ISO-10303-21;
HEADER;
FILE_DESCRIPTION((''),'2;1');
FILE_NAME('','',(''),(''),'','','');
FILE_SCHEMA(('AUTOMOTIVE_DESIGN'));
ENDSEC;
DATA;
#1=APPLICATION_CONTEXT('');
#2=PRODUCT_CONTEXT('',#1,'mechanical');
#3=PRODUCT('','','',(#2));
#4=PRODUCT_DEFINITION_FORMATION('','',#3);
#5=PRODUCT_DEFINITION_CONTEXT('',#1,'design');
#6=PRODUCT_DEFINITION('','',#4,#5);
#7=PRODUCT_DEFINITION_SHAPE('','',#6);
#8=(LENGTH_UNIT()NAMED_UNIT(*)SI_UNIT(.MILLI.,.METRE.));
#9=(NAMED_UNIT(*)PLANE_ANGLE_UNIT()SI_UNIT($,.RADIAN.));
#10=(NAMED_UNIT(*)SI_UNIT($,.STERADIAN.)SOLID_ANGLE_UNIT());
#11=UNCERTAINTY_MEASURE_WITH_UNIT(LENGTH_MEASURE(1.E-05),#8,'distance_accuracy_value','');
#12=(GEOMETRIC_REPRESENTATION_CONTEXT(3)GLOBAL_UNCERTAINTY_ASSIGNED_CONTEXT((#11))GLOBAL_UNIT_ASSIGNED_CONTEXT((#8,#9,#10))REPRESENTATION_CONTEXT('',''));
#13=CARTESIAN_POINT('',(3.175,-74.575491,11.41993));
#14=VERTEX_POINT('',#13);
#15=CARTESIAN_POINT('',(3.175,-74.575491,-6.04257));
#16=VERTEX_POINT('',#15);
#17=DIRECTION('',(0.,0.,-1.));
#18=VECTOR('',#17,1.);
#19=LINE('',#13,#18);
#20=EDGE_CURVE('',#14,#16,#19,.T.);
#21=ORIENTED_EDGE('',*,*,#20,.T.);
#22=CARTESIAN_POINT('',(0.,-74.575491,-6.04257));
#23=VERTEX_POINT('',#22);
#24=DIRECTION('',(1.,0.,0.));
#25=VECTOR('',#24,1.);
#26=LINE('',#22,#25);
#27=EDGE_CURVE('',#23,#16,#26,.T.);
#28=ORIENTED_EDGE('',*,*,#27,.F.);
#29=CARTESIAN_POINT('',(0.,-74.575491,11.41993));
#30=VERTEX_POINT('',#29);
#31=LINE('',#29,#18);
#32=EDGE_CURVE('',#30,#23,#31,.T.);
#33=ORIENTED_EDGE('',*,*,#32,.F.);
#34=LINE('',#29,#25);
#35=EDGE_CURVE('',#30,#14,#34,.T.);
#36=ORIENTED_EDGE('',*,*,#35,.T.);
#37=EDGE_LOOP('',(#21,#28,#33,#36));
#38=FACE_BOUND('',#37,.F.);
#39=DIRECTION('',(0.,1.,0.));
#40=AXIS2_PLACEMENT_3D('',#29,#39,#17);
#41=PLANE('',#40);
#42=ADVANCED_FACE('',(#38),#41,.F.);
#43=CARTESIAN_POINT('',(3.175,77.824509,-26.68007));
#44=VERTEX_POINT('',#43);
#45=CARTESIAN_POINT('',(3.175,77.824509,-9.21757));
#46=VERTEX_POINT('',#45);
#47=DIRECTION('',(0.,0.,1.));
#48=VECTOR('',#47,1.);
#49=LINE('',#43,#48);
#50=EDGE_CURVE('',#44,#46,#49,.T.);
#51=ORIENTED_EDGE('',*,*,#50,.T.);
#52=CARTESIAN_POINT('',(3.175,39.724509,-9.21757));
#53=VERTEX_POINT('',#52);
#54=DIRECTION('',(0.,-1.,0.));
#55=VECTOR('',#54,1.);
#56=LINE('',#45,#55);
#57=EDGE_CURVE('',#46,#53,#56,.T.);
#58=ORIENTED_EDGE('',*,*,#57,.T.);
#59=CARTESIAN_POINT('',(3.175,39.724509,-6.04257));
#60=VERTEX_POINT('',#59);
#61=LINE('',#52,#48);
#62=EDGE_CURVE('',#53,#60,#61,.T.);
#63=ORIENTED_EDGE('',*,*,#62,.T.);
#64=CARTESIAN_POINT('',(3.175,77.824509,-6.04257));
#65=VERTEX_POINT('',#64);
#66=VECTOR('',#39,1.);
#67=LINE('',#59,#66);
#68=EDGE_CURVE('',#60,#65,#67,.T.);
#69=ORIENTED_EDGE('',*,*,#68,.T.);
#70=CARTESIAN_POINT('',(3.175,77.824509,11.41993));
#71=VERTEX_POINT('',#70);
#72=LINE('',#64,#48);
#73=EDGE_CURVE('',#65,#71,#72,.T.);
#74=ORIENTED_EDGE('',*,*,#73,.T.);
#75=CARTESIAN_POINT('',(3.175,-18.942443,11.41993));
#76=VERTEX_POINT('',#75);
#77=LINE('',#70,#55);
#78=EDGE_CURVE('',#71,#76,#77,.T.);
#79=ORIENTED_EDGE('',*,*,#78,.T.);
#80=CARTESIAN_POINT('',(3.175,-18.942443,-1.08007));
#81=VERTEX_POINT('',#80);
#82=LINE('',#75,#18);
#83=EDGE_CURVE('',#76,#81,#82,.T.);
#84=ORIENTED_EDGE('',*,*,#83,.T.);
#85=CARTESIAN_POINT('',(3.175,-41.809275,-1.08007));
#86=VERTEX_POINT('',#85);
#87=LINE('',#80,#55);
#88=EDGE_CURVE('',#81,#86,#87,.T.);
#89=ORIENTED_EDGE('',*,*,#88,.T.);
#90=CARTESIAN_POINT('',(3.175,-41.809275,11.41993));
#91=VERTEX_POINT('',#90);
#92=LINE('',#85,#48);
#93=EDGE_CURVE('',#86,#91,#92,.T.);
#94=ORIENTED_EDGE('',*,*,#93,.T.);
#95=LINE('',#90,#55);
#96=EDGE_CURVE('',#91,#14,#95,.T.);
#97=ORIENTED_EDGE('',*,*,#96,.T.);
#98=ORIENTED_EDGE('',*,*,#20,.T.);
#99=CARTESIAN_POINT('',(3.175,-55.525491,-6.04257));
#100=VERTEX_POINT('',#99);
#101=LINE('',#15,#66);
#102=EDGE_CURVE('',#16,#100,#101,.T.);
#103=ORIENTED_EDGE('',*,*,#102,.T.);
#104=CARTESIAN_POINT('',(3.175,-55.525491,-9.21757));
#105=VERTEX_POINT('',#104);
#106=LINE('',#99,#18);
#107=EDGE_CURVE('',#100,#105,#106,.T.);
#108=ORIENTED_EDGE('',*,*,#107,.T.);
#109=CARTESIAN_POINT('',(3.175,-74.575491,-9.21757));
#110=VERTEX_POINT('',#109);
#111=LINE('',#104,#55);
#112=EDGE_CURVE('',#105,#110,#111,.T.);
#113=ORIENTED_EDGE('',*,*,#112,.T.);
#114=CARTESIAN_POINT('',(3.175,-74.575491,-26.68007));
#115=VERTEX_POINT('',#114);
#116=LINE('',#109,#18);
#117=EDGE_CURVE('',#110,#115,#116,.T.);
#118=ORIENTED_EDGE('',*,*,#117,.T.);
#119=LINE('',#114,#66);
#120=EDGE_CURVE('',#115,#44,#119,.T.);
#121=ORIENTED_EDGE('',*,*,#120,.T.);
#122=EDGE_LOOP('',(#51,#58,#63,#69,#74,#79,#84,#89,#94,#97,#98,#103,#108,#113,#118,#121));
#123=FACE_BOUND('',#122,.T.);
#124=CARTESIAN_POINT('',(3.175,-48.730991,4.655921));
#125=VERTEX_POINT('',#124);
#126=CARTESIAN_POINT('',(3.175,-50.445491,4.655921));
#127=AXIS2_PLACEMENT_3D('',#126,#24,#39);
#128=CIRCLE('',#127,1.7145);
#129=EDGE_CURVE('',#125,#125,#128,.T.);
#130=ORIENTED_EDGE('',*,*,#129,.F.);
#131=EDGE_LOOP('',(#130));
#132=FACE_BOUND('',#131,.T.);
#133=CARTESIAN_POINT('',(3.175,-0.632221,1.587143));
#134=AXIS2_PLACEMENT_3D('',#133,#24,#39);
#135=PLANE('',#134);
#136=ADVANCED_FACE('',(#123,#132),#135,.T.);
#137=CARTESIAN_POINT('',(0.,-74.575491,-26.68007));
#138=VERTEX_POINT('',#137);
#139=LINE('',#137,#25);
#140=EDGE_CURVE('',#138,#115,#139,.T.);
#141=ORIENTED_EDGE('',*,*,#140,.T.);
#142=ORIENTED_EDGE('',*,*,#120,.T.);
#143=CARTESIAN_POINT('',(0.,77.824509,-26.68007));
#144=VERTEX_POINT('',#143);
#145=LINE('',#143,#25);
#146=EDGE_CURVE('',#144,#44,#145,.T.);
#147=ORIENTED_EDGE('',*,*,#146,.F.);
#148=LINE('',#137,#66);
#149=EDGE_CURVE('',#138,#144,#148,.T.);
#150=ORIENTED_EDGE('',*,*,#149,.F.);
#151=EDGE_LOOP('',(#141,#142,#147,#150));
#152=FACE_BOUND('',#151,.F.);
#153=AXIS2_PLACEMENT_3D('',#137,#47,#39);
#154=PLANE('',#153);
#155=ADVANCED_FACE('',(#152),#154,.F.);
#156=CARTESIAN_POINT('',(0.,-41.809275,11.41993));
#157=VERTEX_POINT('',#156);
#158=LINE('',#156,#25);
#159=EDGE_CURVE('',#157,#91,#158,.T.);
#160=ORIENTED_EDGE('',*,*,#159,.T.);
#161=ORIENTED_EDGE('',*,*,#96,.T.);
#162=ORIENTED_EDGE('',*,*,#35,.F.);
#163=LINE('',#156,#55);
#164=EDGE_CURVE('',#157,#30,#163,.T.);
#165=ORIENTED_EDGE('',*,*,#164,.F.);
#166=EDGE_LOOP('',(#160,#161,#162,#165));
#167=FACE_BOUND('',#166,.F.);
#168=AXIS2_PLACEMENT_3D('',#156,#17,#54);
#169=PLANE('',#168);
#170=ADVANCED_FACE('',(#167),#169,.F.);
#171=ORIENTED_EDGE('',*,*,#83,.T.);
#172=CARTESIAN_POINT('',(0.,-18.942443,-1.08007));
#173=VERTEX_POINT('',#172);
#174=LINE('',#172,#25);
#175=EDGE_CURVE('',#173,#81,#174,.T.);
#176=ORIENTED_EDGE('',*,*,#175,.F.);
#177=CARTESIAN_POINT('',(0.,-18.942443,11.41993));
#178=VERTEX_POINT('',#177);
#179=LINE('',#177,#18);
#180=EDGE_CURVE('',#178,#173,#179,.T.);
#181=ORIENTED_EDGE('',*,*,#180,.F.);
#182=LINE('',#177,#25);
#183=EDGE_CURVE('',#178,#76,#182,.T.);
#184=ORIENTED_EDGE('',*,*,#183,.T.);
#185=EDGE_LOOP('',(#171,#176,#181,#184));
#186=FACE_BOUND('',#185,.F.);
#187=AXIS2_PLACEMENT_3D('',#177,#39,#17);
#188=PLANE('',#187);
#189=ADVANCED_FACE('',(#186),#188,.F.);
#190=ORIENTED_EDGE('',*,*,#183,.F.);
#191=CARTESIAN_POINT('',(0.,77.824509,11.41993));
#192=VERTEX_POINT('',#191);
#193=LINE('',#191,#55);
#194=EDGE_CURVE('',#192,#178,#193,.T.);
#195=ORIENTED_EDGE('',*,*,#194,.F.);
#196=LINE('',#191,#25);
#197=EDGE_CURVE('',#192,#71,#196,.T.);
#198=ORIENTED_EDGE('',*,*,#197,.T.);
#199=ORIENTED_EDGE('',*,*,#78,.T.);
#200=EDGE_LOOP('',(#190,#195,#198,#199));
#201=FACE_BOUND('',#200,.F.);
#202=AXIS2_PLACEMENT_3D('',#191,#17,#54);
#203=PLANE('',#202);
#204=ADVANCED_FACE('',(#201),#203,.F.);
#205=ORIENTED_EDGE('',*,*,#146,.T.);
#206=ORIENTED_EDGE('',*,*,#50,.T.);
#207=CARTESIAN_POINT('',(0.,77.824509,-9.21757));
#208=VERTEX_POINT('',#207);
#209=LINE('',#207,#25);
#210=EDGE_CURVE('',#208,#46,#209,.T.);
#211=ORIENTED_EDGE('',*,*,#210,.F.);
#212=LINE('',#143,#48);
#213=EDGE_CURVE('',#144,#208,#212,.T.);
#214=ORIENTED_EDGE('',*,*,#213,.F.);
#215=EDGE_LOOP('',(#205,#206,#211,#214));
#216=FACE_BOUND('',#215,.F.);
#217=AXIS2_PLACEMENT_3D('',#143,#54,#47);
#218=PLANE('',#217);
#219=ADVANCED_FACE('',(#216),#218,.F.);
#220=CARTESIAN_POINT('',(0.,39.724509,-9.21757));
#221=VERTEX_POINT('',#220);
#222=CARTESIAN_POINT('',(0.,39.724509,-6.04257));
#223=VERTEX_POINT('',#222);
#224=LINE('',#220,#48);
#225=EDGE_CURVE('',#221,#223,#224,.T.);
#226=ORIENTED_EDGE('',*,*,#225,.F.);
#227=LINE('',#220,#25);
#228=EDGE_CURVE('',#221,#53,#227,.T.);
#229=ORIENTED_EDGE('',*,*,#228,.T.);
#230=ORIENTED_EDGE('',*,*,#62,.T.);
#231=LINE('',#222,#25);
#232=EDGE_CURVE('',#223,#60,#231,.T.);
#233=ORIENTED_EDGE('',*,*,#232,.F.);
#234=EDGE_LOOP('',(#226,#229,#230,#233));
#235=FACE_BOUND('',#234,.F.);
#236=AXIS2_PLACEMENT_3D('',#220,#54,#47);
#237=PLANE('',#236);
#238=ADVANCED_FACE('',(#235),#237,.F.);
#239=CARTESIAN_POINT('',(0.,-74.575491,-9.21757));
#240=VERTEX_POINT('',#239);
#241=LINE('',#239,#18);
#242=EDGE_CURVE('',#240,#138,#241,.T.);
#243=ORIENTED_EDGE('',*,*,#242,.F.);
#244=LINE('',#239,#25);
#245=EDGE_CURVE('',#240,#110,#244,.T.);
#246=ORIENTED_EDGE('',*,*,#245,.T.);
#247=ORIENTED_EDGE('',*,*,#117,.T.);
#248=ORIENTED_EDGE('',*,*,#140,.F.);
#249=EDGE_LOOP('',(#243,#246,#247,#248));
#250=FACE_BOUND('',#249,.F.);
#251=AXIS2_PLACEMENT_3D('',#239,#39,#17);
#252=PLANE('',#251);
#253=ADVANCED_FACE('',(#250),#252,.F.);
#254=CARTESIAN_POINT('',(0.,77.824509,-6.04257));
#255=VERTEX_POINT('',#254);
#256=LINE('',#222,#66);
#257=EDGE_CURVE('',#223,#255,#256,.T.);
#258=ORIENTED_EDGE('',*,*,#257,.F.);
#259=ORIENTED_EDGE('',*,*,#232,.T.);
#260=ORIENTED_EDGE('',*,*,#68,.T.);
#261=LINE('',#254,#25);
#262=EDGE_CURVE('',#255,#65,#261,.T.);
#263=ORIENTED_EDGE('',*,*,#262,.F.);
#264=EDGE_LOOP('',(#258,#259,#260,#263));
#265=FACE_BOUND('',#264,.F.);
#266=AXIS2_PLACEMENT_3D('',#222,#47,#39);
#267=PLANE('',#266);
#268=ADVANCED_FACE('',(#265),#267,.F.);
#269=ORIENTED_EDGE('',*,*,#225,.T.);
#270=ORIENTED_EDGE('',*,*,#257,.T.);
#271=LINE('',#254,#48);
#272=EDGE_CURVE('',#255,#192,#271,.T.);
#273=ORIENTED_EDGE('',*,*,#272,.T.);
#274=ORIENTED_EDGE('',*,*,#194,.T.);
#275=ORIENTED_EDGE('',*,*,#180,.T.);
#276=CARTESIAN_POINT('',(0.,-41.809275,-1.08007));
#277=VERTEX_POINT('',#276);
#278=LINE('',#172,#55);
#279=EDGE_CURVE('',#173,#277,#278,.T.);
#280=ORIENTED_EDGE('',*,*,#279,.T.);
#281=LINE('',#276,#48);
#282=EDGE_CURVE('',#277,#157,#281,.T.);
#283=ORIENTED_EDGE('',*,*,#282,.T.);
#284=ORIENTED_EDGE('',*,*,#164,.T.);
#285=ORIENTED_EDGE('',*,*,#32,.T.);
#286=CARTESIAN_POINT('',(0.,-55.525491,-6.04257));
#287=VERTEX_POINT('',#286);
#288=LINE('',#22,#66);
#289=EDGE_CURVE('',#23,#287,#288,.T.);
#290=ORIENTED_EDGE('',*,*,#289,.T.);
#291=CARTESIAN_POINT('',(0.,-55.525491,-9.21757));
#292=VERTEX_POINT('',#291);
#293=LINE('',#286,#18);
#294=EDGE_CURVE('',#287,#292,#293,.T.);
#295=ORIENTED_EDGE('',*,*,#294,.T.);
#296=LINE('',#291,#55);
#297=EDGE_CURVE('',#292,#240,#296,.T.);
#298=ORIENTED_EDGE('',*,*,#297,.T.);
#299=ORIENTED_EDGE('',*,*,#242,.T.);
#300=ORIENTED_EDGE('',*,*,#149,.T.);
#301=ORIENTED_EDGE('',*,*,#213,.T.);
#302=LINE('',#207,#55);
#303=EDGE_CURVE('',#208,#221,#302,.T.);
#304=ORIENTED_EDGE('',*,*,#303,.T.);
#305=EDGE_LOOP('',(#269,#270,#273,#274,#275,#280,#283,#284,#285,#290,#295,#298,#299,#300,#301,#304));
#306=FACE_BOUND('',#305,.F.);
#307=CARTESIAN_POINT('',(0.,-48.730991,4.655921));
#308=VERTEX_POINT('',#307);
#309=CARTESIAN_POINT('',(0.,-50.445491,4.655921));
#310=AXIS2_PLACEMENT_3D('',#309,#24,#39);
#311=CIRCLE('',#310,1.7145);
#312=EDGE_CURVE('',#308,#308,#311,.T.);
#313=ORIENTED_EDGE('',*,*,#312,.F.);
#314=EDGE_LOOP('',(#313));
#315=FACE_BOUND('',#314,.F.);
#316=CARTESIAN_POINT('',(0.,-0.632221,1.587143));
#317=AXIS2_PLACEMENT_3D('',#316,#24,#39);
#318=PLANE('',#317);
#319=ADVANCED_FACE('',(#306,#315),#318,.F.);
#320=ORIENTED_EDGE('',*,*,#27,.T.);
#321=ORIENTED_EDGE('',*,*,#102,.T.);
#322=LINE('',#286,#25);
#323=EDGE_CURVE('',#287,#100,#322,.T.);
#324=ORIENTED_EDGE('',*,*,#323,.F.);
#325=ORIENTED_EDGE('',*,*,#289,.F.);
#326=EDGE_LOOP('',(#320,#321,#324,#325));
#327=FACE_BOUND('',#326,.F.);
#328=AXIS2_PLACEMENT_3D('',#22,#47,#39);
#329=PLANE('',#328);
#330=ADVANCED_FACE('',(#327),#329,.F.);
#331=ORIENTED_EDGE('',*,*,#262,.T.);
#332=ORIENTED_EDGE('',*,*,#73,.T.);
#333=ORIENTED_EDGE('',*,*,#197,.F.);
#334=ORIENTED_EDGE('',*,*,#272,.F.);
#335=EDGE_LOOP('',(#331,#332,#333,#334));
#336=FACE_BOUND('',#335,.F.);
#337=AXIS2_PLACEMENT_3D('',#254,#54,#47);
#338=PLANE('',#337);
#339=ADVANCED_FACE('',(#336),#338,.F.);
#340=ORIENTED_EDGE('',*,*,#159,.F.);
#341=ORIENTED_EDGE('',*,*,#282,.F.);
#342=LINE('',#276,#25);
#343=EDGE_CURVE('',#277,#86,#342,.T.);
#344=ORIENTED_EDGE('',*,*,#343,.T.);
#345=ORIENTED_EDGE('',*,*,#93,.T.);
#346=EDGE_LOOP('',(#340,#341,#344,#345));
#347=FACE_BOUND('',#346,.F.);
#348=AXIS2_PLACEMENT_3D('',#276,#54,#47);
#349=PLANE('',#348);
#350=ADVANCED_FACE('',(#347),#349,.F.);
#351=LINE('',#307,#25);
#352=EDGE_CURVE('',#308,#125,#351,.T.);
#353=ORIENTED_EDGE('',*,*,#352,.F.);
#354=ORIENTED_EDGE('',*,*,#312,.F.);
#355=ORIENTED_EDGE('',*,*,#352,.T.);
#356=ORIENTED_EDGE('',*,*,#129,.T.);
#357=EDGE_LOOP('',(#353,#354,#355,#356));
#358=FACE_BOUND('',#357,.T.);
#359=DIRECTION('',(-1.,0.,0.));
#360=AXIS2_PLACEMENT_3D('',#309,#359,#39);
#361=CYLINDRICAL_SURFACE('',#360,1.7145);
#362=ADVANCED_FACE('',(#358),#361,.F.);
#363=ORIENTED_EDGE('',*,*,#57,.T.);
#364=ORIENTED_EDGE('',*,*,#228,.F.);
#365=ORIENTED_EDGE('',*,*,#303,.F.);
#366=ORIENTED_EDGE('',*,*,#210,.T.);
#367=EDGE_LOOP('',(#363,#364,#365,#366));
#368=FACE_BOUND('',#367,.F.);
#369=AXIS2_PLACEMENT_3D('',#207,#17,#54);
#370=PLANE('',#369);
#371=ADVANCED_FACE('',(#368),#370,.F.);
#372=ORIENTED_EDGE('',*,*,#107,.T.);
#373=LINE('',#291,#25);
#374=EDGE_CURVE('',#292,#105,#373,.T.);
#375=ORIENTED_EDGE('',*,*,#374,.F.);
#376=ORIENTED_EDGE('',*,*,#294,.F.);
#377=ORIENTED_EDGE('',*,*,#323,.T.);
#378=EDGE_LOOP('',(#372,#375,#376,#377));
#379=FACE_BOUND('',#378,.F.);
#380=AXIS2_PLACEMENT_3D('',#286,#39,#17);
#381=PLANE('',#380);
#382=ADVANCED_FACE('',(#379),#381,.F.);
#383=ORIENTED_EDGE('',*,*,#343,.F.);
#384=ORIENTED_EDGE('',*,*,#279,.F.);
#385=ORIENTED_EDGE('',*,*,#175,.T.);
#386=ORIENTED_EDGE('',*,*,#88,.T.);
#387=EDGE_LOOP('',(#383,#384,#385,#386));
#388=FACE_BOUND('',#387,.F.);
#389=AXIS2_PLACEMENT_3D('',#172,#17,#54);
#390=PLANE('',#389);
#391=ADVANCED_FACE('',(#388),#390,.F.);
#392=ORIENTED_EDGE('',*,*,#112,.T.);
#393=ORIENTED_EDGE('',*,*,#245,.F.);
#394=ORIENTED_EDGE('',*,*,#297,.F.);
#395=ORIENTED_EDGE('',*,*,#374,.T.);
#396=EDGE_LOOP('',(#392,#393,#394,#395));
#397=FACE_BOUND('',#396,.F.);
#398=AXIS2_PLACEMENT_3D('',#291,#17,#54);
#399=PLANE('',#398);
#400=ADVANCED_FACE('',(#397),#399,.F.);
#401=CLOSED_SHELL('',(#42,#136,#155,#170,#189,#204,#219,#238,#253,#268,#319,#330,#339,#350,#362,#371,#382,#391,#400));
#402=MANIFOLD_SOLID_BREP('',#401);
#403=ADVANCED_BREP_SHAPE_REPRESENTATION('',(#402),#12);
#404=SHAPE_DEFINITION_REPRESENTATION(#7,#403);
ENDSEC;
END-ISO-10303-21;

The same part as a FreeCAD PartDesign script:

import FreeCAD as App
import Part
import Sketcher
from FreeCAD import Vector
Q = App.Units.Quantity


def add_polygon(sketch, points):
    """Adds a closed chain of lines whose ends are joined by coincident constraints."""
    first, n = sketch.GeometryCount, len(points)
    for a, b in zip(points, points[1:] + points[:1]):
        sketch.addGeometry(Part.LineSegment(App.Vector(*a, 0), App.Vector(*b, 0)), False)
    for i in range(n):
        sketch.addConstraint(Sketcher.Constraint("Coincident", first + i, 2, first + (i + 1) % n, 1))

doc = App.newDocument("Part")
body = doc.addObject("PartDesign::Body", "Body")

sketch1 = body.newObject("Sketcher::SketchObject", "Sketch")
sketch1.AttachmentSupport = (doc.getObject("YZ_Plane"), [""])
sketch1.MapMode = "FlatFace"
add_polygon(sketch1, [(-41.8, 11.4), (-74.6, 11.4), (-74.6, -6), (-55.5, -6), (-55.5, -9.2), (-74.6, -9.2), (-74.6, -26.7), (77.8, -26.7), (77.8, -9.2), (39.7, -9.2), (39.7, -6), (77.8, -6), (77.8, 11.4), (-18.9, 11.4), (-18.9, -1.1), (-41.8, -1.1)])
sketch1.addGeometry(Part.Circle(Vector(-50.4, 4.7, 0), Vector(0, 0, 1), 1.7), False)
sketch1.addConstraint(Sketcher.Constraint("Horizontal", 0))
sketch1.addConstraint(Sketcher.Constraint("Vertical", 1))
sketch1.addConstraint(Sketcher.Constraint("Horizontal", 2))
sketch1.addConstraint(Sketcher.Constraint("Vertical", 3))
sketch1.addConstraint(Sketcher.Constraint("Horizontal", 4))
sketch1.addConstraint(Sketcher.Constraint("Vertical", 5))
sketch1.addConstraint(Sketcher.Constraint("Horizontal", 6))
sketch1.addConstraint(Sketcher.Constraint("Vertical", 7))
sketch1.addConstraint(Sketcher.Constraint("Horizontal", 8))
sketch1.addConstraint(Sketcher.Constraint("Vertical", 9))
sketch1.addConstraint(Sketcher.Constraint("Horizontal", 10))
sketch1.addConstraint(Sketcher.Constraint("Vertical", 11))
sketch1.addConstraint(Sketcher.Constraint("Horizontal", 12))
sketch1.addConstraint(Sketcher.Constraint("Vertical", 13))
sketch1.addConstraint(Sketcher.Constraint("Horizontal", 14))
sketch1.addConstraint(Sketcher.Constraint("Vertical", 15))
sketch1.addConstraint(Sketcher.Constraint("Horizontal", 4, 2, 7, 2))
sketch1.addConstraint(Sketcher.Constraint("Horizontal", 2, 2, 9, 2))
sketch1.addConstraint(Sketcher.Constraint("Horizontal", 0, 2, 11, 2))
sketch1.addConstraint(Sketcher.Constraint("Vertical", 1, 2, 4, 2))
sketch1.addConstraint(Sketcher.Constraint("Vertical", 7, 2, 10, 2))
sketch1.addConstraint(Sketcher.Constraint("Equal", 1, 5))
sketch1.addConstraint(Sketcher.Constraint("DistanceX", 6, 1, 6, 2, Q("6 in")))
sketch1.addConstraint(Sketcher.Constraint("Diameter", 16, Q("0.135 in")))
sketch1.addConstraint(Sketcher.Constraint("DistanceX", 8, 2, 8, 1, Q("1.5 in")))
sketch1.addConstraint(Sketcher.Constraint("DistanceX", 2, 1, 2, 2, Q("0.75 in")))
sketch1.addConstraint(Sketcher.Constraint("DistanceX", 2, 2, 16, 3, Q("0.2 in")))
sketch1.addConstraint(Sketcher.Constraint("DistanceY", 5, 2, 0, 2, Q("1.5 in")))
sketch1.addConstraint(Sketcher.Constraint("DistanceY", 1, 2, 1, 1, Q("0.6875 in")))
sketch1.addConstraint(Sketcher.Constraint("DistanceY", 13, 2, 13, 1, Q("12.5 mm")))
sketch1.addConstraint(Sketcher.Constraint("DistanceX", 14, 2, 14, 1, Q("22.866832 mm")))
sketch1.addConstraint(Sketcher.Constraint("DistanceX", 0, 2, 0, 1, Q("32.766216 mm")))
sketch1.addConstraint(Sketcher.Constraint("DistanceX", 16, 3, -1, 1, Q("50.445491 mm")))
sketch1.addConstraint(Sketcher.Constraint("DistanceY", -1, 1, 16, 3, Q("4.655921 mm")))
sketch1.addConstraint(Sketcher.Constraint("DistanceY", -1, 1, 0, 2, Q("11.41993 mm")))
pad1 = body.newObject("PartDesign::Pad", "Pad")
pad1.Profile = sketch1
pad1.Length = Q("0.125 in")

doc.recompute()
